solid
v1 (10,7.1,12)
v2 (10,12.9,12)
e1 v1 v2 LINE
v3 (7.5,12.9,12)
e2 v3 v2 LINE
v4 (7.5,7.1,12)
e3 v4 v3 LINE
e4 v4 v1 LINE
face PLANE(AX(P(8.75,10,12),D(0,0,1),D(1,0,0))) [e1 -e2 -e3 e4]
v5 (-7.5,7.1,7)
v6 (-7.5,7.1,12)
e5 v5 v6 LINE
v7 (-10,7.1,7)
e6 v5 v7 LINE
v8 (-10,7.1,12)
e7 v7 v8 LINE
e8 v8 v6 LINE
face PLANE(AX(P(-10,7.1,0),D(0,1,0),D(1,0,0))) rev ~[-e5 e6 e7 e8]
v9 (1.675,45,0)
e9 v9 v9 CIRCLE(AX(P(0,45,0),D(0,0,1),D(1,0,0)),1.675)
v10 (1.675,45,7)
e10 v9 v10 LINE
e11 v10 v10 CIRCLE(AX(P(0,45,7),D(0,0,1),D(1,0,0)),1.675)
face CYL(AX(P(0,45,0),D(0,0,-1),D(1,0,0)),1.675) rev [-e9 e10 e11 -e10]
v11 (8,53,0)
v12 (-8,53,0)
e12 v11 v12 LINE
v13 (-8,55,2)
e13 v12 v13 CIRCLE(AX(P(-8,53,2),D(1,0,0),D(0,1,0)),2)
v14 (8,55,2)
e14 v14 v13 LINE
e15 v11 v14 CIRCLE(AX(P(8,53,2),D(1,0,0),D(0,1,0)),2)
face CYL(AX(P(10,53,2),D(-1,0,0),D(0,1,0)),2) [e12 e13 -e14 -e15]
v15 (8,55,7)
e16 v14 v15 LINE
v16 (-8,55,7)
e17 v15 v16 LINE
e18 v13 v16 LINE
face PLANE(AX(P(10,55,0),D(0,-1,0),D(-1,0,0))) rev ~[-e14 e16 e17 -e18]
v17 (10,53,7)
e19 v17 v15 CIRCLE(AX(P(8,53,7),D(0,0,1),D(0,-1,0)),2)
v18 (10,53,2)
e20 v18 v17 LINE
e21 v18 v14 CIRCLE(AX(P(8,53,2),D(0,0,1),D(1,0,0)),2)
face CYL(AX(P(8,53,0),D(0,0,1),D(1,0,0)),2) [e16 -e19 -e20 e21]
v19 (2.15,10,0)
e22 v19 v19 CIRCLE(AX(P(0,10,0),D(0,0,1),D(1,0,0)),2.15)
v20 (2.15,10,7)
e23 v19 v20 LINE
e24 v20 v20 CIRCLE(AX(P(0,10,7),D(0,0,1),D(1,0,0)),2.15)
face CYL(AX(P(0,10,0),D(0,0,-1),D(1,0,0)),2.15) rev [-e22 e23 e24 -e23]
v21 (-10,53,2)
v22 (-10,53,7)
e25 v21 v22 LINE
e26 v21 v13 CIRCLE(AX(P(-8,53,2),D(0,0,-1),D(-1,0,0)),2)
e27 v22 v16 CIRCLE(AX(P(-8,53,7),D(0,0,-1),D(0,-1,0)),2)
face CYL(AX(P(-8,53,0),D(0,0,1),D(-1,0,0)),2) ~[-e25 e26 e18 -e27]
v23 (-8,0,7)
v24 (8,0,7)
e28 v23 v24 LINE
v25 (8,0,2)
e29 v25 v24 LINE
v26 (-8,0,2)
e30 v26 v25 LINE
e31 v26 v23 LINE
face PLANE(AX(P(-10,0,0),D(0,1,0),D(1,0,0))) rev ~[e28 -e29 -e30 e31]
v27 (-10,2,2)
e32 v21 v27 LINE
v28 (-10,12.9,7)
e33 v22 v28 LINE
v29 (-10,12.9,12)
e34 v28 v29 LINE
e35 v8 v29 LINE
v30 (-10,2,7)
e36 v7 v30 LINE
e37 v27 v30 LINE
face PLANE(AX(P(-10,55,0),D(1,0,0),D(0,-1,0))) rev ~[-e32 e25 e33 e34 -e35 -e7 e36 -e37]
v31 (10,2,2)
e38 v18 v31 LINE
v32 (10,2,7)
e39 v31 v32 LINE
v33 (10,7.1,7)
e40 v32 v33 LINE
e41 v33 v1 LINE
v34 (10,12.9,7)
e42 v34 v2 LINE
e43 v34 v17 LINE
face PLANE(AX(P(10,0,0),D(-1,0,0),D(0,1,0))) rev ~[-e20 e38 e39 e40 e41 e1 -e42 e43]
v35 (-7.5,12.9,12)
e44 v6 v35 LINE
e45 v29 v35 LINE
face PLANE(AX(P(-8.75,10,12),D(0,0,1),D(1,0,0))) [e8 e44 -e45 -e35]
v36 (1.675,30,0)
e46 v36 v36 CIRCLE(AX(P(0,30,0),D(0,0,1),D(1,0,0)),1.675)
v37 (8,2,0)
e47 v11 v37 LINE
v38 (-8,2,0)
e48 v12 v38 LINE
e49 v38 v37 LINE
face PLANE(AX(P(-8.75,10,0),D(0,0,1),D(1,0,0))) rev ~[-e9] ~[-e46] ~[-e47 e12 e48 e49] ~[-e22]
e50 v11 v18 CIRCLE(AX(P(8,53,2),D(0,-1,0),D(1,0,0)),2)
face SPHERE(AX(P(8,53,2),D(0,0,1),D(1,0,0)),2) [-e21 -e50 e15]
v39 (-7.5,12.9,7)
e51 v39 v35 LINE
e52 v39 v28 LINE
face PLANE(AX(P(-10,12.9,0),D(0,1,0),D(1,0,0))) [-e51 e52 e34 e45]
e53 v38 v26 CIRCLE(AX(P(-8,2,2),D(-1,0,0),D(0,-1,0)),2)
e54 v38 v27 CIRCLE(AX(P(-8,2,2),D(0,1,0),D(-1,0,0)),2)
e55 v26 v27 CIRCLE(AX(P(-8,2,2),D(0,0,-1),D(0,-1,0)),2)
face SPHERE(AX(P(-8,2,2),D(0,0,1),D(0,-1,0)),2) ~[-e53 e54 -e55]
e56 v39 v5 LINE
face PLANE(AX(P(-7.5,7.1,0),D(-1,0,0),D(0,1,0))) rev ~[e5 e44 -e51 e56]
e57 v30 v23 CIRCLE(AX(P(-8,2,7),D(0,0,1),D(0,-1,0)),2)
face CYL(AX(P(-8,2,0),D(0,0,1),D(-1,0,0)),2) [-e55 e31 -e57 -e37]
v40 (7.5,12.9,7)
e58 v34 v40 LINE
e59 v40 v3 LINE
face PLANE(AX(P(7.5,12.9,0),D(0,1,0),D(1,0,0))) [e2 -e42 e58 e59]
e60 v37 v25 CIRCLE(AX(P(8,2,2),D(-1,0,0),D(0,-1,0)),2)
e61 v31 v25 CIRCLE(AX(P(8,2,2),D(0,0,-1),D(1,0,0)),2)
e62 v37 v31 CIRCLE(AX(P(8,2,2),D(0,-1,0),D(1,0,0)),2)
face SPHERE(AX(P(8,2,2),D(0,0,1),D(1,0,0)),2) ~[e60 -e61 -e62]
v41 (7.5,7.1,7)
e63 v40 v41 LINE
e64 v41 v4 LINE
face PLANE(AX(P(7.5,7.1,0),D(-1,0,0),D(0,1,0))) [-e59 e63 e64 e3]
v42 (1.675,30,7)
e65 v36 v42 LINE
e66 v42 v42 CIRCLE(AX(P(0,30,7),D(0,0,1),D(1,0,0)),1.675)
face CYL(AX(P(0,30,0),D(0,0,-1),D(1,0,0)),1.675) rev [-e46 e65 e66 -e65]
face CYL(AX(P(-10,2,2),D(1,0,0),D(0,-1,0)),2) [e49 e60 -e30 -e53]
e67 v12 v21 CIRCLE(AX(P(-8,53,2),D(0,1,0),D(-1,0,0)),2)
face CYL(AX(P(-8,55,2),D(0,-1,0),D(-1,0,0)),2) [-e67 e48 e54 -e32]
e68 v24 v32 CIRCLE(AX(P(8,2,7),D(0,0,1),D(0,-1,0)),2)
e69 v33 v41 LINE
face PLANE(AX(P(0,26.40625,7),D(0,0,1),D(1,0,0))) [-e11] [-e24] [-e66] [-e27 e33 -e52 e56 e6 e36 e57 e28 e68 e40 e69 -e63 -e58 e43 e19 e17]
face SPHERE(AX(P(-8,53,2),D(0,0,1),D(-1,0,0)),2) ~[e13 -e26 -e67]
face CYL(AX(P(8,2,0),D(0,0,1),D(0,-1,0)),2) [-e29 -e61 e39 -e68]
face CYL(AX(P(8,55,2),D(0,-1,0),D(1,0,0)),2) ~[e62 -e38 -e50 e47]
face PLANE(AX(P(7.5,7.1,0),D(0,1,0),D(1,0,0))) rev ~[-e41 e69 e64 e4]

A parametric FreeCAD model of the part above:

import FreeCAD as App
import Part
import Sketcher
from FreeCAD import Vector
Q = App.Units.Quantity


def edges_at(feature, points):
    """Names of the edges that pass closest to the given points."""
    edges = feature.Shape.Edges
    near = lambda p: min(range(len(edges)), key=lambda i: edges[i].distToShape(Part.Vertex(*p))[0])
    return sorted({f"Edge{near(p) + 1}" for p in points})

doc = App.newDocument("Part")
body = doc.addObject("PartDesign::Body", "Body")

sketch1 = doc.addObject("Sketcher::SketchObject", "Sketch")
body.addObject(sketch1)
sketch1.AttachmentSupport = (doc.XY_Plane, [""])
sketch1.MapMode = "FlatFace"
sketch1.addGeometry([
    Part.LineSegment(Vector(-10, 0, 0), Vector(10, 0, 0)),
    Part.LineSegment(Vector(10, 0, 0), Vector(10, 55, 0)),
    Part.LineSegment(Vector(10, 55, 0), Vector(-10, 55, 0)),
    Part.LineSegment(Vector(-10, 55, 0), Vector(-10, 0, 0)),
    Part.Circle(Vector(0, 10, 0), Vector(0, 0, 1), 2.15),
    Part.Circle(Vector(0, 30, 0), Vector(0, 0, 1), 1.675),
    Part.Circle(Vector(0, 45, 0), Vector(0, 0, 1), 1.675),
], False)
sketch1.addConstraint([
    Sketcher.Constraint("Coincident", 0, 2, 1, 1),
    Sketcher.Constraint("Coincident", 1, 2, 2, 1),
    Sketcher.Constraint("Coincident", 2, 2, 3, 1),
    Sketcher.Constraint("Coincident", 3, 2, 0, 1),
    Sketcher.Constraint("Horizontal", 0),
    Sketcher.Constraint("Vertical", 1),
    Sketcher.Constraint("Horizontal", 2),
    Sketcher.Constraint("Vertical", 3),
    Sketcher.Constraint("Equal", 5, 6),
    Sketcher.Constraint("Symmetric", 0, 2, 3, 2, -1, 1),
    Sketcher.Constraint("PointOnObject", 4, 3, -2),
    Sketcher.Constraint("PointOnObject", 5, 3, -2),
    Sketcher.Constraint("PointOnObject", 6, 3, -2),
    Sketcher.Constraint("Diameter", 4, Q("4.3 mm")),
    Sketcher.Constraint("Diameter", 5, Q("3.35 mm")),
    Sketcher.Constraint("DistanceX", 0, 1, 0, 2, Q("20 mm")),
    Sketcher.Constraint("DistanceY", 1, 1, 1, 2, Q("55 mm")),
    Sketcher.Constraint("DistanceY", -1, 1, 4, 3, Q("10 mm")),
    Sketcher.Constraint("DistanceY", -1, 1, 5, 3, Q("30 mm")),
    Sketcher.Constraint("DistanceY", -1, 1, 6, 3, Q("45 mm")),
])
pad1 = doc.addObject("PartDesign::Pad", "Pad")
body.addObject(pad1)
pad1.Profile = sketch1
pad1.Length = 7

sketch2 = doc.addObject("Sketcher::SketchObject", "Sketch001")
body.addObject(sketch2)
sketch2.AttachmentSupport = (doc.XY_Plane, [""])
sketch2.MapMode = "FlatFace"
sketch2.addGeometry([
    Part.LineSegment(Vector(-10, 12.9, 0), Vector(-10, 7.1, 0)),
    Part.LineSegment(Vector(-10, 7.1, 0), Vector(-7.5, 7.1, 0)),
    Part.LineSegment(Vector(-7.5, 7.1, 0), Vector(-7.5, 12.9, 0)),
    Part.LineSegment(Vector(-7.5, 12.9, 0), Vector(-10, 12.9, 0)),
    Part.LineSegment(Vector(7.5, 12.9, 0), Vector(7.5, 7.1, 0)),
    Part.LineSegment(Vector(7.5, 7.1, 0), Vector(10, 7.1, 0)),
    Part.LineSegment(Vector(10, 7.1, 0), Vector(10, 12.9, 0)),
    Part.LineSegment(Vector(10, 12.9, 0), Vector(7.5, 12.9, 0)),
], False)
sketch2.addConstraint([
    Sketcher.Constraint("Coincident", 0, 2, 1, 1),
    Sketcher.Constraint("Coincident", 1, 2, 2, 1),
    Sketcher.Constraint("Coincident", 2, 2, 3, 1),
    Sketcher.Constraint("Coincident", 3, 2, 0, 1),
    Sketcher.Constraint("Coincident", 4, 2, 5, 1),
    Sketcher.Constraint("Coincident", 5, 2, 6, 1),
    Sketcher.Constraint("Coincident", 6, 2, 7, 1),
    Sketcher.Constraint("Coincident", 7, 2, 4, 1),
    Sketcher.Constraint("Vertical", 0),
    Sketcher.Constraint("Horizontal", 1),
    Sketcher.Constraint("Vertical", 2),
    Sketcher.Constraint("Horizontal", 3),
    Sketcher.Constraint("Vertical", 4),
    Sketcher.Constraint("Horizontal", 5),
    Sketcher.Constraint("Vertical", 6),
    Sketcher.Constraint("Horizontal", 7),
    Sketcher.Constraint("Symmetric", 1, 2, 4, 2, -2),
    Sketcher.Constraint("Symmetric", 3, 2, 6, 2, -2),
    Sketcher.Constraint("DistanceX", 1, 1, 1, 2, Q("2.5 mm")),
    Sketcher.Constraint("DistanceY", 0, 2, 0, 1, Q("5.8 mm")),
    Sketcher.Constraint("DistanceX", 0, 2, -1, 1, Q("10 mm")),
    Sketcher.Constraint("DistanceY", -1, 1, 0, 2, Q("7.1 mm")),
])
pad2 = doc.addObject("PartDesign::Pad", "Pad001")
body.addObject(pad2)
pad2.Profile = sketch2
pad2.Length = 12
doc.recompute()

fillet = doc.addObject("PartDesign::Fillet", "Fillet")
body.addObject(fillet)
fillet.Base = (pad2, edges_at(pad2, [
    (10, 0, 3.5),
    (-10, 0, 3.5),
    (10, 55, 3.5),
    (-10, 55, 3.5),
    (10, 27.5, 0),
    (0, 0, 0),
    (-10, 27.5, 0),
    (0, 55, 0),
]))
fillet.Radius = 2

doc.recompute()
